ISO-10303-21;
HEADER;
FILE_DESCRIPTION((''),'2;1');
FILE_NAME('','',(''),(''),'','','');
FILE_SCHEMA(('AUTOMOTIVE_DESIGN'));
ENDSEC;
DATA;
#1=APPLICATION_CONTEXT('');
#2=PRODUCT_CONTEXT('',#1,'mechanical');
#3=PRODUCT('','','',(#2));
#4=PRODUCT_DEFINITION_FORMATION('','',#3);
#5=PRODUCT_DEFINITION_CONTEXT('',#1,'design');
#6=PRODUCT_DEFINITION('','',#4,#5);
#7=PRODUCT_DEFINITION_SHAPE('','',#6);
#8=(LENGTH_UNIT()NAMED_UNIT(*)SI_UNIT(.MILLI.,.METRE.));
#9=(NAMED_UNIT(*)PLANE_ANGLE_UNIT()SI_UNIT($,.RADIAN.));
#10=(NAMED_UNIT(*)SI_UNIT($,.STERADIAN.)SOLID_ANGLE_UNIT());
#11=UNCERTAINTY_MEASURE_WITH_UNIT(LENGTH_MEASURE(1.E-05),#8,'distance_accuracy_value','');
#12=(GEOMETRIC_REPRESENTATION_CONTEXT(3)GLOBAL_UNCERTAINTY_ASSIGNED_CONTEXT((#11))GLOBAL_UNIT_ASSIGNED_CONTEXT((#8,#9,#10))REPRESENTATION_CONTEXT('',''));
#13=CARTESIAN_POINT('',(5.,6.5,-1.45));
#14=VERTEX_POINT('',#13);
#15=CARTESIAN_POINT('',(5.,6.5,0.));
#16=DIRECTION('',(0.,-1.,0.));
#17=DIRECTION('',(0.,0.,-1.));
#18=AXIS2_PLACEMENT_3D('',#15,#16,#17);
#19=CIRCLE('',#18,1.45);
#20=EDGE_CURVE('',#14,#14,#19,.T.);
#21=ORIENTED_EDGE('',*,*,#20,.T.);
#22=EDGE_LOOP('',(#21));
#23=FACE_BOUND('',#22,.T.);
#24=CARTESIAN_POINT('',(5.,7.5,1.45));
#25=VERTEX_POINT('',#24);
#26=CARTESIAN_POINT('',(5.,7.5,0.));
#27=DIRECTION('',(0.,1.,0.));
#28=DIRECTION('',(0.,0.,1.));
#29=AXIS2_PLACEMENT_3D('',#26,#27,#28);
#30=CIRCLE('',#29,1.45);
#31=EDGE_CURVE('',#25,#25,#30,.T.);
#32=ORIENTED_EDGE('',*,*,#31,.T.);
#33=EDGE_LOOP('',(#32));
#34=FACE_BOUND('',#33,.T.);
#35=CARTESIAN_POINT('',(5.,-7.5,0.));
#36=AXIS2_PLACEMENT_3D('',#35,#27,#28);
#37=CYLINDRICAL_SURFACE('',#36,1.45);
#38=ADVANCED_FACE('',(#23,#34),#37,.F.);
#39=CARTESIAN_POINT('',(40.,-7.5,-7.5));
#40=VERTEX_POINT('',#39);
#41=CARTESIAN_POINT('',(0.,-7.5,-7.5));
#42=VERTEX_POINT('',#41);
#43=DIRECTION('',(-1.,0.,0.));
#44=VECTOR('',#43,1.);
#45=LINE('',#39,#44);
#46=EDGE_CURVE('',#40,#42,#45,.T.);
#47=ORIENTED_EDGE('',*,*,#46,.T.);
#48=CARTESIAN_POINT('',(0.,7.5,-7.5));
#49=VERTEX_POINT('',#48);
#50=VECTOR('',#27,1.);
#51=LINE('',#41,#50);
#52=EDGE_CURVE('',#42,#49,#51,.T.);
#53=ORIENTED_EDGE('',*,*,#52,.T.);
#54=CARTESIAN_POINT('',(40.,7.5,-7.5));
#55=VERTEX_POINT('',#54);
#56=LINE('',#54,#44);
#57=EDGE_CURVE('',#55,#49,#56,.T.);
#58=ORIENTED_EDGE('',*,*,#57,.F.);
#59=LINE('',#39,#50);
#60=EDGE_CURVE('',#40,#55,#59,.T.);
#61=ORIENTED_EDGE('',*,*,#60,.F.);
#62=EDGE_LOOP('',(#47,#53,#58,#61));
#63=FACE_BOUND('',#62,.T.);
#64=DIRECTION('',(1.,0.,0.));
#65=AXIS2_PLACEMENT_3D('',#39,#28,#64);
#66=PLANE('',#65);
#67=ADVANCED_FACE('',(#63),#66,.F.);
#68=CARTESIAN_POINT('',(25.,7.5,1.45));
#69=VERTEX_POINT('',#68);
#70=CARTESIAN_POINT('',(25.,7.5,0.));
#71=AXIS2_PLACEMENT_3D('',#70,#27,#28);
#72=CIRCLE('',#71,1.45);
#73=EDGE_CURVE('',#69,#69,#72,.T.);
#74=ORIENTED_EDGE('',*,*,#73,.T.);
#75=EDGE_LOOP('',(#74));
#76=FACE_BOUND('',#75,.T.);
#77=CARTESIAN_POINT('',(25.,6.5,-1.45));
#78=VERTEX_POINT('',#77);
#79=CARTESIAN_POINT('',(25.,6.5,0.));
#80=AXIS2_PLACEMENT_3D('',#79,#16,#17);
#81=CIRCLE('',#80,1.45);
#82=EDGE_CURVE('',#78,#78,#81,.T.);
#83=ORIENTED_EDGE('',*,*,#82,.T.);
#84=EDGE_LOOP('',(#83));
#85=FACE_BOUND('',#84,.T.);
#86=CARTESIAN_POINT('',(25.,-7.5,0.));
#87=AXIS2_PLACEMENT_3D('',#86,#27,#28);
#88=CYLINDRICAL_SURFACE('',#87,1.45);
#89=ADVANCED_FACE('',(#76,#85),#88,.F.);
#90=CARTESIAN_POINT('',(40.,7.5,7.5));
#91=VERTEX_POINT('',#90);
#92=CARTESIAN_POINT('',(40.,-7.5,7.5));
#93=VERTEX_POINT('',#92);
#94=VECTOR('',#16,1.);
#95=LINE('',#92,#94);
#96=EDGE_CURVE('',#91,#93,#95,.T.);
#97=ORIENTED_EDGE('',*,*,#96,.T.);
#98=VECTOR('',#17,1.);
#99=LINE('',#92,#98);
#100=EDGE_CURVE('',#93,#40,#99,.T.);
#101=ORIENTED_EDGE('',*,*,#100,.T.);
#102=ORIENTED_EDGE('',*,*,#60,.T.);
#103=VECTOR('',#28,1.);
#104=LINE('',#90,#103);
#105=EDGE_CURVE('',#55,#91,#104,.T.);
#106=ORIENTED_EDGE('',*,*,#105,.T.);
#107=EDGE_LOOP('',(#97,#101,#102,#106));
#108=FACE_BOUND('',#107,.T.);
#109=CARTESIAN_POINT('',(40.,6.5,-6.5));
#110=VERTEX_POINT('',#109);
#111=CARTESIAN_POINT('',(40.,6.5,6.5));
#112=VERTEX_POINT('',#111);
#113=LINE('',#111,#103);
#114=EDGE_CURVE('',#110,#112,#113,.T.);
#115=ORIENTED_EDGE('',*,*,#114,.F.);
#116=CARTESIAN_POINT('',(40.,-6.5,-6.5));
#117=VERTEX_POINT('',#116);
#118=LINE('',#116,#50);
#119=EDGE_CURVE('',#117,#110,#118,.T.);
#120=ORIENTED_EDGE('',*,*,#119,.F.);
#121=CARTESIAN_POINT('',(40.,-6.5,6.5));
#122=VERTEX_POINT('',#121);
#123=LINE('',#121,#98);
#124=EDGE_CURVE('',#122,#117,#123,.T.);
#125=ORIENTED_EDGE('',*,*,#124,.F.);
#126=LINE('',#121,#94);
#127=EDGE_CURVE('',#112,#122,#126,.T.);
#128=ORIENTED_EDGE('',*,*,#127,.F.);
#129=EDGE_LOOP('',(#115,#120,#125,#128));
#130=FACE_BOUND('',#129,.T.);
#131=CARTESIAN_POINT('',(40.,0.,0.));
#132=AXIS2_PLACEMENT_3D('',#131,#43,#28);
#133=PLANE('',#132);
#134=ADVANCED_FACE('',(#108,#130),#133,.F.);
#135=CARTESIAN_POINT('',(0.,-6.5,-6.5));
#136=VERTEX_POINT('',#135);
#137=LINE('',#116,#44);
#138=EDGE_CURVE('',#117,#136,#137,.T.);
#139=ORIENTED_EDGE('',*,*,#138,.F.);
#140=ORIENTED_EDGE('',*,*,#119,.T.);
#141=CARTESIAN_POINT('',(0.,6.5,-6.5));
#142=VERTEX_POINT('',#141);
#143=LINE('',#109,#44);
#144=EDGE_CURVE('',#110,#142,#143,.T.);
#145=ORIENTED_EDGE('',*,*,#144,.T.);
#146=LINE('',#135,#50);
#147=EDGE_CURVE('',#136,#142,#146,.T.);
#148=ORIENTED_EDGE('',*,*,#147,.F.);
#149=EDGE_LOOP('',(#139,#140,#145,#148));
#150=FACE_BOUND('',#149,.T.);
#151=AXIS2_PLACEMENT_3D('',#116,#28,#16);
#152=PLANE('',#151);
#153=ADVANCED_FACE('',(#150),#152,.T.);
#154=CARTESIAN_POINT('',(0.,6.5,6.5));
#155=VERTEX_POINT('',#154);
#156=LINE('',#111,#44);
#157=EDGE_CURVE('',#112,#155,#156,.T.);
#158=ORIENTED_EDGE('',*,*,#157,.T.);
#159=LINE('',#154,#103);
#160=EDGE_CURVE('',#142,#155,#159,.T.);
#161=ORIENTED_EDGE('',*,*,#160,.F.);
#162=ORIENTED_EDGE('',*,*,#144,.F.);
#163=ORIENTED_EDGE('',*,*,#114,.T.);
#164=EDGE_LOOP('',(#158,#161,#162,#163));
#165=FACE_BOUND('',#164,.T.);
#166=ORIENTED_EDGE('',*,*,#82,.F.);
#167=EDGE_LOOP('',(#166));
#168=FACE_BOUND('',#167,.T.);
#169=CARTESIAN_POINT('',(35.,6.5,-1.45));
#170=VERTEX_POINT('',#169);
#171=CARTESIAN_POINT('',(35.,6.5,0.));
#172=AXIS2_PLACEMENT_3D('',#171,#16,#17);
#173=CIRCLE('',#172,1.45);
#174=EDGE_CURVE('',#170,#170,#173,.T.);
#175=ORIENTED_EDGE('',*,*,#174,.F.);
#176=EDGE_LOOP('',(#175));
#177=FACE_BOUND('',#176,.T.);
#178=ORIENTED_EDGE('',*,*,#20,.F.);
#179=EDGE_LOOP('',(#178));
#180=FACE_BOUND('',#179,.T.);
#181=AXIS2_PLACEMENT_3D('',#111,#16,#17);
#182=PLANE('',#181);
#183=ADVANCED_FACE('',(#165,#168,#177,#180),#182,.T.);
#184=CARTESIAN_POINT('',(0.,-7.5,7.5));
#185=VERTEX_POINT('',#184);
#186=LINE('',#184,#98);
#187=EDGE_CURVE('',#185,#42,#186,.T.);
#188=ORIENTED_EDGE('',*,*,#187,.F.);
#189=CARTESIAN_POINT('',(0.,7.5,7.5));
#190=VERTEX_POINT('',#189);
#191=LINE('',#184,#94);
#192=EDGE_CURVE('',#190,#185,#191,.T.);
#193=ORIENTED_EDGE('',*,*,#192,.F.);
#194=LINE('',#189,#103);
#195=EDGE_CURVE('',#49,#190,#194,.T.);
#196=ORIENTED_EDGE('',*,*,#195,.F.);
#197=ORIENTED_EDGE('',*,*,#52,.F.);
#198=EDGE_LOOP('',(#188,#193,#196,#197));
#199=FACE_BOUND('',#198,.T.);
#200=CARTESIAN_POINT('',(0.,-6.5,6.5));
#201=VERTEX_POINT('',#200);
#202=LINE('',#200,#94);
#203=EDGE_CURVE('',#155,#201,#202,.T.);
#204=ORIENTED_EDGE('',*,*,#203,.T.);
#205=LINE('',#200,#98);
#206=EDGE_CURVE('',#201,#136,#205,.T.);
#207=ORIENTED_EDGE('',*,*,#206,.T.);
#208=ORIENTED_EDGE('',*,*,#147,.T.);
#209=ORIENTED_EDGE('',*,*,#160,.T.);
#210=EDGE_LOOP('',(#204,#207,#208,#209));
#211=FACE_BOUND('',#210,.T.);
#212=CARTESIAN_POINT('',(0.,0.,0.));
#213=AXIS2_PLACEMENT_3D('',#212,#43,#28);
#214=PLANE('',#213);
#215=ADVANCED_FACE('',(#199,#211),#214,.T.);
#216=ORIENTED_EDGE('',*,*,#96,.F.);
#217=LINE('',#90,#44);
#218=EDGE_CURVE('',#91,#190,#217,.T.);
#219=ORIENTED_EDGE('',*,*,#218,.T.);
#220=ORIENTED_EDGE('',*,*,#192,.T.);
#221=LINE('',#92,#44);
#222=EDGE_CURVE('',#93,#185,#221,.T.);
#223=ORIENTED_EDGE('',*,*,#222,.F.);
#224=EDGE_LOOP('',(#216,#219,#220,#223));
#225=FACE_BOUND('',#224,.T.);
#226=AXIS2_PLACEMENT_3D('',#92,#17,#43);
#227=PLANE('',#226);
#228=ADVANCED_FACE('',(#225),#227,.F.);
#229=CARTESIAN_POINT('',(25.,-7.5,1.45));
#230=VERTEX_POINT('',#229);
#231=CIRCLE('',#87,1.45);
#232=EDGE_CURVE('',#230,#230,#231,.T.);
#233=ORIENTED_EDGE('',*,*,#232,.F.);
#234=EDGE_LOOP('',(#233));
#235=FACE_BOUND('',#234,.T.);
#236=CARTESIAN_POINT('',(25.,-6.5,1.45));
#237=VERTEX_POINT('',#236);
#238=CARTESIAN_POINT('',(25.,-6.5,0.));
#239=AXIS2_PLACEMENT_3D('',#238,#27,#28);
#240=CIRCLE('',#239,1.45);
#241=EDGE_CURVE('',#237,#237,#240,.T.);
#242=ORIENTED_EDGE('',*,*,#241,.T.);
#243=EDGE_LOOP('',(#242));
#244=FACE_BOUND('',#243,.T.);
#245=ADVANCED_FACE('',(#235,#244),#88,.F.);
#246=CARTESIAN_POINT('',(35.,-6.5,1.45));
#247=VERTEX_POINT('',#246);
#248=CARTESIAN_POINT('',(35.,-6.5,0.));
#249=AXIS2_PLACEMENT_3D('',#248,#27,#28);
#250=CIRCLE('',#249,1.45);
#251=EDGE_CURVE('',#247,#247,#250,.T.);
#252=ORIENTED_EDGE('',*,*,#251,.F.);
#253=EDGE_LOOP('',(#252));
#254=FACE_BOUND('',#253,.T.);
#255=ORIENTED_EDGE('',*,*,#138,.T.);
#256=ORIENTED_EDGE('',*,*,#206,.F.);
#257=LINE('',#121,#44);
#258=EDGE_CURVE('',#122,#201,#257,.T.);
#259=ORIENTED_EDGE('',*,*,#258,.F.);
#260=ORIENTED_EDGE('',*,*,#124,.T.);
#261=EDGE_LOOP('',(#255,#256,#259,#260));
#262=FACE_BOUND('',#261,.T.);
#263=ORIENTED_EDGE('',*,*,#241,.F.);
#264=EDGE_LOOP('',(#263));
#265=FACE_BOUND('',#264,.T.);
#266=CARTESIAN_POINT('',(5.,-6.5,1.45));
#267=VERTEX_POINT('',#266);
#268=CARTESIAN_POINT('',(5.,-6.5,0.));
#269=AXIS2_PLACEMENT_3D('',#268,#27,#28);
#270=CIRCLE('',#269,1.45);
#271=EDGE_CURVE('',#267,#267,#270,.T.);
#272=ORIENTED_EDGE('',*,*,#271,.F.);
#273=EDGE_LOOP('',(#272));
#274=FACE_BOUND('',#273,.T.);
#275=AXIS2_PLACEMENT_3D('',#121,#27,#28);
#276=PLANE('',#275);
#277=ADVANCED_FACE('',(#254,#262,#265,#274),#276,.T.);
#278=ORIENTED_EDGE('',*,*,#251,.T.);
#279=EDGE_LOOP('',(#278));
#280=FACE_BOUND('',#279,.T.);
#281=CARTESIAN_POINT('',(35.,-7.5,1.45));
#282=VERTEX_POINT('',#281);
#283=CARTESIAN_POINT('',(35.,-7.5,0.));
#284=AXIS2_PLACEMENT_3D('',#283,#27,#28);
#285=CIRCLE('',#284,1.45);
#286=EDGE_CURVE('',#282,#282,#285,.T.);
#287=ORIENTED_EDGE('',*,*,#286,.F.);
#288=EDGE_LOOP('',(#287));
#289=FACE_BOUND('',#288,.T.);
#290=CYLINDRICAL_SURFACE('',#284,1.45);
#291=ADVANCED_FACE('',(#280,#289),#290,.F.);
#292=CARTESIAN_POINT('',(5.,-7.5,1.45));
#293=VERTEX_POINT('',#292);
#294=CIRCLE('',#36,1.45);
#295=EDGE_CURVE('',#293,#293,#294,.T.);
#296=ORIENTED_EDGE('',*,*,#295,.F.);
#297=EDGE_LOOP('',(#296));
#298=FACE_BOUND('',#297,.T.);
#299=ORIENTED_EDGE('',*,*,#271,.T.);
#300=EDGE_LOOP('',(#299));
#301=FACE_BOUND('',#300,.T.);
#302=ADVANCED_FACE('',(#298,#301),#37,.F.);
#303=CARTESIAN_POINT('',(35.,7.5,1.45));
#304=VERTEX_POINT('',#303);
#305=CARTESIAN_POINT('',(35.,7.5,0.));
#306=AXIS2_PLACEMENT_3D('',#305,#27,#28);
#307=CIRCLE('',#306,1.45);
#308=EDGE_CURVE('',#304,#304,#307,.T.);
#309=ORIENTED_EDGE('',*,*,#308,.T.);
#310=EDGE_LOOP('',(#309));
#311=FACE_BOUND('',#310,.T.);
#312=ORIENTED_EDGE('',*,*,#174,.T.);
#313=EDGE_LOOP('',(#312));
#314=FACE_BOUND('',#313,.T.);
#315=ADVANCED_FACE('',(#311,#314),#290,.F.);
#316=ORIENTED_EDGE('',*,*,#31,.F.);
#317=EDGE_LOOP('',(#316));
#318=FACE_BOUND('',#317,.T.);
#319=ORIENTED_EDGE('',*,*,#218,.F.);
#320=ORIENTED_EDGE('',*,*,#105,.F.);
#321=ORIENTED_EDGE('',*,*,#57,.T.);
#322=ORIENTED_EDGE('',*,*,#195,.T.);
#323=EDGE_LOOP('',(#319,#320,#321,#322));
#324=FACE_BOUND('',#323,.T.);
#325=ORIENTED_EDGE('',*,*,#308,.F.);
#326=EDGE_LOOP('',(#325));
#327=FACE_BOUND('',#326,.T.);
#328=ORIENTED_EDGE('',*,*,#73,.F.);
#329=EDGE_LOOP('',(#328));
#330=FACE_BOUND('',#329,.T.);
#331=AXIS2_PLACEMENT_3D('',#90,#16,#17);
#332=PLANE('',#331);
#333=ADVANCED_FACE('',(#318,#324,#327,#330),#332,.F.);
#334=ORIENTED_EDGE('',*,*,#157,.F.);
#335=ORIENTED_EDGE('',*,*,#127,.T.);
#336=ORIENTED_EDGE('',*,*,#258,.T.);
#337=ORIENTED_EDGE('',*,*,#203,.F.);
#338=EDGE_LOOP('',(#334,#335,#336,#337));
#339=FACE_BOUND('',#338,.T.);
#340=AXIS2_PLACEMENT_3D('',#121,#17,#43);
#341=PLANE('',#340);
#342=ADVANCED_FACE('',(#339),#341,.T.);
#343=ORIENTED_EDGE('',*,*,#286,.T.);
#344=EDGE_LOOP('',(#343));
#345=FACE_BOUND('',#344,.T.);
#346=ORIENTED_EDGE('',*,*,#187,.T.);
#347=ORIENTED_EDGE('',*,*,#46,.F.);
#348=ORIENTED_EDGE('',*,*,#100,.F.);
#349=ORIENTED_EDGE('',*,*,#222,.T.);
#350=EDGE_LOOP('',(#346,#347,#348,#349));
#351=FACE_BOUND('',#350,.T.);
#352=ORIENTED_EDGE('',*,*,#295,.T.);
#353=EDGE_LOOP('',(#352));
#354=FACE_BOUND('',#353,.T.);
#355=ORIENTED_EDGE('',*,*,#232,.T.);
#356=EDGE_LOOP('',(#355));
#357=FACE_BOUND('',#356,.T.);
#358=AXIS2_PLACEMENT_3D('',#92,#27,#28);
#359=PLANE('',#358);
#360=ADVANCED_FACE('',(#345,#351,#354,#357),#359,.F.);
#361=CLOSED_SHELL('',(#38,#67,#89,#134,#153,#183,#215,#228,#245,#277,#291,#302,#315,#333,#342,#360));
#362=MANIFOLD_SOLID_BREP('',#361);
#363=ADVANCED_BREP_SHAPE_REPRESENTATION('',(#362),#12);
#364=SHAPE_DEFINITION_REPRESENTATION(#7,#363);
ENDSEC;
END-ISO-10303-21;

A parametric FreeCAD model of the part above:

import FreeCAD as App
import Part
import Sketcher

V = App.Vector
Q = App.Units.Quantity


def add_polygon(sketch, points):
    """Adds a closed chain of lines whose ends are joined by coincident constraints."""
    first, n = sketch.GeometryCount, len(points)
    for a, b in zip(points, points[1:] + points[:1]):
        sketch.addGeometry(Part.LineSegment(App.Vector(*a, 0), App.Vector(*b, 0)), False)
    for i in range(n):
        sketch.addConstraint(Sketcher.Constraint("Coincident", first + i, 2, first + (i + 1) % n, 1))

doc = App.newDocument("Part")
params = doc.addObject("Spreadsheet::Sheet", "Params")
for row, (alias, value) in enumerate([
    ("sketch1_width", "15 mm"),
    ("sketch1_width2", "13 mm"),
    ("pad1_length", "40 mm"),
    ("sketch2_diameter", "2.9 mm"),
], start=1):
    params.set(f"A{row}", alias)
    params.set(f"B{row}", "=" + value)
    params.setAlias(f"B{row}", alias)

body = doc.addObject("PartDesign::Body", "Body")

sketch1 = doc.addObject("Sketcher::SketchObject", "Sketch")
body.addObject(sketch1)
sketch1.AttachmentSupport = (doc.YZ_Plane, [""])
sketch1.MapMode = "FlatFace"
add_polygon(sketch1, [(8, 8), (-8, 8), (-8, -8), (8, -8)])
add_polygon(sketch1, [(-6, -6), (-6, 6), (6, 6), (6, -6)])
sketch1.addConstraint([
    Sketcher.Constraint("Horizontal", 0),
    Sketcher.Constraint("Vertical", 1),
    Sketcher.Constraint("Horizontal", 2),
    Sketcher.Constraint("Vertical", 3),
    Sketcher.Constraint("Vertical", 4),
    Sketcher.Constraint("Horizontal", 5),
    Sketcher.Constraint("Vertical", 6),
    Sketcher.Constraint("Horizontal", 7),
    Sketcher.Constraint("Symmetric", 0, 2, 2, 2, -1, 1),
    Sketcher.Constraint("Symmetric", 4, 2, 6, 2, -1, 1),
    Sketcher.Constraint("Equal", 2, 1),
    Sketcher.Constraint("Equal", 7, 4),
    Sketcher.Constraint("DistanceX", 0, 2, 0, 1, Q("15 mm")),
    Sketcher.Constraint("DistanceX", 5, 1, 5, 2, Q("13 mm")),
])
sketch1.setExpression("Constraints[20]", "Params.sketch1_width")
sketch1.setExpression("Constraints[21]", "Params.sketch1_width2")
pad1 = doc.addObject("PartDesign::Pad", "Pad")
body.addObject(pad1)
pad1.Profile = sketch1
pad1.setExpression("Length", "Params.pad1_length")

sketch2 = doc.addObject("Sketcher::SketchObject", "Sketch001")
body.addObject(sketch2)
sketch2.AttachmentSupport = (doc.XZ_Plane, [""])
sketch2.MapMode = "FlatFace"
sketch2.AttachmentOffset = App.Placement(V(0, 0, -7.5), App.Rotation())
sketch2.addGeometry([
    Part.Circle(V(5, 0, 0), V(0, 0, 1), 1.4),
    Part.Circle(V(25, 0, 0), V(0, 0, 1), 1.4),
    Part.Circle(V(35, 0, 0), V(0, 0, 1), 1.4),
], False)
sketch2.addConstraint([
    Sketcher.Constraint("Equal", 0, 1),
    Sketcher.Constraint("Equal", 1, 2),
    Sketcher.Constraint("PointOnObject", 0, 3, -1),
    Sketcher.Constraint("PointOnObject", 1, 3, -1),
    Sketcher.Constraint("PointOnObject", 2, 3, -1),
    Sketcher.Constraint("Diameter", 0, Q("2.9 mm")),
    Sketcher.Constraint("DistanceX", -1, 1, 0, 3, Q("5 mm")),
    Sketcher.Constraint("DistanceX", -1, 1, 1, 3, Q("25 mm")),
    Sketcher.Constraint("DistanceX", -1, 1, 2, 3, Q("35 mm")),
])
sketch2.setExpression("Constraints[5]", "Params.sketch2_diameter")
pocket1 = doc.addObject("PartDesign::Pocket", "Pocket")
body.addObject(pocket1)
pocket1.Profile = sketch2
pocket1.Type = "ThroughAll"
pocket1.Reversed = True

doc.recompute()
